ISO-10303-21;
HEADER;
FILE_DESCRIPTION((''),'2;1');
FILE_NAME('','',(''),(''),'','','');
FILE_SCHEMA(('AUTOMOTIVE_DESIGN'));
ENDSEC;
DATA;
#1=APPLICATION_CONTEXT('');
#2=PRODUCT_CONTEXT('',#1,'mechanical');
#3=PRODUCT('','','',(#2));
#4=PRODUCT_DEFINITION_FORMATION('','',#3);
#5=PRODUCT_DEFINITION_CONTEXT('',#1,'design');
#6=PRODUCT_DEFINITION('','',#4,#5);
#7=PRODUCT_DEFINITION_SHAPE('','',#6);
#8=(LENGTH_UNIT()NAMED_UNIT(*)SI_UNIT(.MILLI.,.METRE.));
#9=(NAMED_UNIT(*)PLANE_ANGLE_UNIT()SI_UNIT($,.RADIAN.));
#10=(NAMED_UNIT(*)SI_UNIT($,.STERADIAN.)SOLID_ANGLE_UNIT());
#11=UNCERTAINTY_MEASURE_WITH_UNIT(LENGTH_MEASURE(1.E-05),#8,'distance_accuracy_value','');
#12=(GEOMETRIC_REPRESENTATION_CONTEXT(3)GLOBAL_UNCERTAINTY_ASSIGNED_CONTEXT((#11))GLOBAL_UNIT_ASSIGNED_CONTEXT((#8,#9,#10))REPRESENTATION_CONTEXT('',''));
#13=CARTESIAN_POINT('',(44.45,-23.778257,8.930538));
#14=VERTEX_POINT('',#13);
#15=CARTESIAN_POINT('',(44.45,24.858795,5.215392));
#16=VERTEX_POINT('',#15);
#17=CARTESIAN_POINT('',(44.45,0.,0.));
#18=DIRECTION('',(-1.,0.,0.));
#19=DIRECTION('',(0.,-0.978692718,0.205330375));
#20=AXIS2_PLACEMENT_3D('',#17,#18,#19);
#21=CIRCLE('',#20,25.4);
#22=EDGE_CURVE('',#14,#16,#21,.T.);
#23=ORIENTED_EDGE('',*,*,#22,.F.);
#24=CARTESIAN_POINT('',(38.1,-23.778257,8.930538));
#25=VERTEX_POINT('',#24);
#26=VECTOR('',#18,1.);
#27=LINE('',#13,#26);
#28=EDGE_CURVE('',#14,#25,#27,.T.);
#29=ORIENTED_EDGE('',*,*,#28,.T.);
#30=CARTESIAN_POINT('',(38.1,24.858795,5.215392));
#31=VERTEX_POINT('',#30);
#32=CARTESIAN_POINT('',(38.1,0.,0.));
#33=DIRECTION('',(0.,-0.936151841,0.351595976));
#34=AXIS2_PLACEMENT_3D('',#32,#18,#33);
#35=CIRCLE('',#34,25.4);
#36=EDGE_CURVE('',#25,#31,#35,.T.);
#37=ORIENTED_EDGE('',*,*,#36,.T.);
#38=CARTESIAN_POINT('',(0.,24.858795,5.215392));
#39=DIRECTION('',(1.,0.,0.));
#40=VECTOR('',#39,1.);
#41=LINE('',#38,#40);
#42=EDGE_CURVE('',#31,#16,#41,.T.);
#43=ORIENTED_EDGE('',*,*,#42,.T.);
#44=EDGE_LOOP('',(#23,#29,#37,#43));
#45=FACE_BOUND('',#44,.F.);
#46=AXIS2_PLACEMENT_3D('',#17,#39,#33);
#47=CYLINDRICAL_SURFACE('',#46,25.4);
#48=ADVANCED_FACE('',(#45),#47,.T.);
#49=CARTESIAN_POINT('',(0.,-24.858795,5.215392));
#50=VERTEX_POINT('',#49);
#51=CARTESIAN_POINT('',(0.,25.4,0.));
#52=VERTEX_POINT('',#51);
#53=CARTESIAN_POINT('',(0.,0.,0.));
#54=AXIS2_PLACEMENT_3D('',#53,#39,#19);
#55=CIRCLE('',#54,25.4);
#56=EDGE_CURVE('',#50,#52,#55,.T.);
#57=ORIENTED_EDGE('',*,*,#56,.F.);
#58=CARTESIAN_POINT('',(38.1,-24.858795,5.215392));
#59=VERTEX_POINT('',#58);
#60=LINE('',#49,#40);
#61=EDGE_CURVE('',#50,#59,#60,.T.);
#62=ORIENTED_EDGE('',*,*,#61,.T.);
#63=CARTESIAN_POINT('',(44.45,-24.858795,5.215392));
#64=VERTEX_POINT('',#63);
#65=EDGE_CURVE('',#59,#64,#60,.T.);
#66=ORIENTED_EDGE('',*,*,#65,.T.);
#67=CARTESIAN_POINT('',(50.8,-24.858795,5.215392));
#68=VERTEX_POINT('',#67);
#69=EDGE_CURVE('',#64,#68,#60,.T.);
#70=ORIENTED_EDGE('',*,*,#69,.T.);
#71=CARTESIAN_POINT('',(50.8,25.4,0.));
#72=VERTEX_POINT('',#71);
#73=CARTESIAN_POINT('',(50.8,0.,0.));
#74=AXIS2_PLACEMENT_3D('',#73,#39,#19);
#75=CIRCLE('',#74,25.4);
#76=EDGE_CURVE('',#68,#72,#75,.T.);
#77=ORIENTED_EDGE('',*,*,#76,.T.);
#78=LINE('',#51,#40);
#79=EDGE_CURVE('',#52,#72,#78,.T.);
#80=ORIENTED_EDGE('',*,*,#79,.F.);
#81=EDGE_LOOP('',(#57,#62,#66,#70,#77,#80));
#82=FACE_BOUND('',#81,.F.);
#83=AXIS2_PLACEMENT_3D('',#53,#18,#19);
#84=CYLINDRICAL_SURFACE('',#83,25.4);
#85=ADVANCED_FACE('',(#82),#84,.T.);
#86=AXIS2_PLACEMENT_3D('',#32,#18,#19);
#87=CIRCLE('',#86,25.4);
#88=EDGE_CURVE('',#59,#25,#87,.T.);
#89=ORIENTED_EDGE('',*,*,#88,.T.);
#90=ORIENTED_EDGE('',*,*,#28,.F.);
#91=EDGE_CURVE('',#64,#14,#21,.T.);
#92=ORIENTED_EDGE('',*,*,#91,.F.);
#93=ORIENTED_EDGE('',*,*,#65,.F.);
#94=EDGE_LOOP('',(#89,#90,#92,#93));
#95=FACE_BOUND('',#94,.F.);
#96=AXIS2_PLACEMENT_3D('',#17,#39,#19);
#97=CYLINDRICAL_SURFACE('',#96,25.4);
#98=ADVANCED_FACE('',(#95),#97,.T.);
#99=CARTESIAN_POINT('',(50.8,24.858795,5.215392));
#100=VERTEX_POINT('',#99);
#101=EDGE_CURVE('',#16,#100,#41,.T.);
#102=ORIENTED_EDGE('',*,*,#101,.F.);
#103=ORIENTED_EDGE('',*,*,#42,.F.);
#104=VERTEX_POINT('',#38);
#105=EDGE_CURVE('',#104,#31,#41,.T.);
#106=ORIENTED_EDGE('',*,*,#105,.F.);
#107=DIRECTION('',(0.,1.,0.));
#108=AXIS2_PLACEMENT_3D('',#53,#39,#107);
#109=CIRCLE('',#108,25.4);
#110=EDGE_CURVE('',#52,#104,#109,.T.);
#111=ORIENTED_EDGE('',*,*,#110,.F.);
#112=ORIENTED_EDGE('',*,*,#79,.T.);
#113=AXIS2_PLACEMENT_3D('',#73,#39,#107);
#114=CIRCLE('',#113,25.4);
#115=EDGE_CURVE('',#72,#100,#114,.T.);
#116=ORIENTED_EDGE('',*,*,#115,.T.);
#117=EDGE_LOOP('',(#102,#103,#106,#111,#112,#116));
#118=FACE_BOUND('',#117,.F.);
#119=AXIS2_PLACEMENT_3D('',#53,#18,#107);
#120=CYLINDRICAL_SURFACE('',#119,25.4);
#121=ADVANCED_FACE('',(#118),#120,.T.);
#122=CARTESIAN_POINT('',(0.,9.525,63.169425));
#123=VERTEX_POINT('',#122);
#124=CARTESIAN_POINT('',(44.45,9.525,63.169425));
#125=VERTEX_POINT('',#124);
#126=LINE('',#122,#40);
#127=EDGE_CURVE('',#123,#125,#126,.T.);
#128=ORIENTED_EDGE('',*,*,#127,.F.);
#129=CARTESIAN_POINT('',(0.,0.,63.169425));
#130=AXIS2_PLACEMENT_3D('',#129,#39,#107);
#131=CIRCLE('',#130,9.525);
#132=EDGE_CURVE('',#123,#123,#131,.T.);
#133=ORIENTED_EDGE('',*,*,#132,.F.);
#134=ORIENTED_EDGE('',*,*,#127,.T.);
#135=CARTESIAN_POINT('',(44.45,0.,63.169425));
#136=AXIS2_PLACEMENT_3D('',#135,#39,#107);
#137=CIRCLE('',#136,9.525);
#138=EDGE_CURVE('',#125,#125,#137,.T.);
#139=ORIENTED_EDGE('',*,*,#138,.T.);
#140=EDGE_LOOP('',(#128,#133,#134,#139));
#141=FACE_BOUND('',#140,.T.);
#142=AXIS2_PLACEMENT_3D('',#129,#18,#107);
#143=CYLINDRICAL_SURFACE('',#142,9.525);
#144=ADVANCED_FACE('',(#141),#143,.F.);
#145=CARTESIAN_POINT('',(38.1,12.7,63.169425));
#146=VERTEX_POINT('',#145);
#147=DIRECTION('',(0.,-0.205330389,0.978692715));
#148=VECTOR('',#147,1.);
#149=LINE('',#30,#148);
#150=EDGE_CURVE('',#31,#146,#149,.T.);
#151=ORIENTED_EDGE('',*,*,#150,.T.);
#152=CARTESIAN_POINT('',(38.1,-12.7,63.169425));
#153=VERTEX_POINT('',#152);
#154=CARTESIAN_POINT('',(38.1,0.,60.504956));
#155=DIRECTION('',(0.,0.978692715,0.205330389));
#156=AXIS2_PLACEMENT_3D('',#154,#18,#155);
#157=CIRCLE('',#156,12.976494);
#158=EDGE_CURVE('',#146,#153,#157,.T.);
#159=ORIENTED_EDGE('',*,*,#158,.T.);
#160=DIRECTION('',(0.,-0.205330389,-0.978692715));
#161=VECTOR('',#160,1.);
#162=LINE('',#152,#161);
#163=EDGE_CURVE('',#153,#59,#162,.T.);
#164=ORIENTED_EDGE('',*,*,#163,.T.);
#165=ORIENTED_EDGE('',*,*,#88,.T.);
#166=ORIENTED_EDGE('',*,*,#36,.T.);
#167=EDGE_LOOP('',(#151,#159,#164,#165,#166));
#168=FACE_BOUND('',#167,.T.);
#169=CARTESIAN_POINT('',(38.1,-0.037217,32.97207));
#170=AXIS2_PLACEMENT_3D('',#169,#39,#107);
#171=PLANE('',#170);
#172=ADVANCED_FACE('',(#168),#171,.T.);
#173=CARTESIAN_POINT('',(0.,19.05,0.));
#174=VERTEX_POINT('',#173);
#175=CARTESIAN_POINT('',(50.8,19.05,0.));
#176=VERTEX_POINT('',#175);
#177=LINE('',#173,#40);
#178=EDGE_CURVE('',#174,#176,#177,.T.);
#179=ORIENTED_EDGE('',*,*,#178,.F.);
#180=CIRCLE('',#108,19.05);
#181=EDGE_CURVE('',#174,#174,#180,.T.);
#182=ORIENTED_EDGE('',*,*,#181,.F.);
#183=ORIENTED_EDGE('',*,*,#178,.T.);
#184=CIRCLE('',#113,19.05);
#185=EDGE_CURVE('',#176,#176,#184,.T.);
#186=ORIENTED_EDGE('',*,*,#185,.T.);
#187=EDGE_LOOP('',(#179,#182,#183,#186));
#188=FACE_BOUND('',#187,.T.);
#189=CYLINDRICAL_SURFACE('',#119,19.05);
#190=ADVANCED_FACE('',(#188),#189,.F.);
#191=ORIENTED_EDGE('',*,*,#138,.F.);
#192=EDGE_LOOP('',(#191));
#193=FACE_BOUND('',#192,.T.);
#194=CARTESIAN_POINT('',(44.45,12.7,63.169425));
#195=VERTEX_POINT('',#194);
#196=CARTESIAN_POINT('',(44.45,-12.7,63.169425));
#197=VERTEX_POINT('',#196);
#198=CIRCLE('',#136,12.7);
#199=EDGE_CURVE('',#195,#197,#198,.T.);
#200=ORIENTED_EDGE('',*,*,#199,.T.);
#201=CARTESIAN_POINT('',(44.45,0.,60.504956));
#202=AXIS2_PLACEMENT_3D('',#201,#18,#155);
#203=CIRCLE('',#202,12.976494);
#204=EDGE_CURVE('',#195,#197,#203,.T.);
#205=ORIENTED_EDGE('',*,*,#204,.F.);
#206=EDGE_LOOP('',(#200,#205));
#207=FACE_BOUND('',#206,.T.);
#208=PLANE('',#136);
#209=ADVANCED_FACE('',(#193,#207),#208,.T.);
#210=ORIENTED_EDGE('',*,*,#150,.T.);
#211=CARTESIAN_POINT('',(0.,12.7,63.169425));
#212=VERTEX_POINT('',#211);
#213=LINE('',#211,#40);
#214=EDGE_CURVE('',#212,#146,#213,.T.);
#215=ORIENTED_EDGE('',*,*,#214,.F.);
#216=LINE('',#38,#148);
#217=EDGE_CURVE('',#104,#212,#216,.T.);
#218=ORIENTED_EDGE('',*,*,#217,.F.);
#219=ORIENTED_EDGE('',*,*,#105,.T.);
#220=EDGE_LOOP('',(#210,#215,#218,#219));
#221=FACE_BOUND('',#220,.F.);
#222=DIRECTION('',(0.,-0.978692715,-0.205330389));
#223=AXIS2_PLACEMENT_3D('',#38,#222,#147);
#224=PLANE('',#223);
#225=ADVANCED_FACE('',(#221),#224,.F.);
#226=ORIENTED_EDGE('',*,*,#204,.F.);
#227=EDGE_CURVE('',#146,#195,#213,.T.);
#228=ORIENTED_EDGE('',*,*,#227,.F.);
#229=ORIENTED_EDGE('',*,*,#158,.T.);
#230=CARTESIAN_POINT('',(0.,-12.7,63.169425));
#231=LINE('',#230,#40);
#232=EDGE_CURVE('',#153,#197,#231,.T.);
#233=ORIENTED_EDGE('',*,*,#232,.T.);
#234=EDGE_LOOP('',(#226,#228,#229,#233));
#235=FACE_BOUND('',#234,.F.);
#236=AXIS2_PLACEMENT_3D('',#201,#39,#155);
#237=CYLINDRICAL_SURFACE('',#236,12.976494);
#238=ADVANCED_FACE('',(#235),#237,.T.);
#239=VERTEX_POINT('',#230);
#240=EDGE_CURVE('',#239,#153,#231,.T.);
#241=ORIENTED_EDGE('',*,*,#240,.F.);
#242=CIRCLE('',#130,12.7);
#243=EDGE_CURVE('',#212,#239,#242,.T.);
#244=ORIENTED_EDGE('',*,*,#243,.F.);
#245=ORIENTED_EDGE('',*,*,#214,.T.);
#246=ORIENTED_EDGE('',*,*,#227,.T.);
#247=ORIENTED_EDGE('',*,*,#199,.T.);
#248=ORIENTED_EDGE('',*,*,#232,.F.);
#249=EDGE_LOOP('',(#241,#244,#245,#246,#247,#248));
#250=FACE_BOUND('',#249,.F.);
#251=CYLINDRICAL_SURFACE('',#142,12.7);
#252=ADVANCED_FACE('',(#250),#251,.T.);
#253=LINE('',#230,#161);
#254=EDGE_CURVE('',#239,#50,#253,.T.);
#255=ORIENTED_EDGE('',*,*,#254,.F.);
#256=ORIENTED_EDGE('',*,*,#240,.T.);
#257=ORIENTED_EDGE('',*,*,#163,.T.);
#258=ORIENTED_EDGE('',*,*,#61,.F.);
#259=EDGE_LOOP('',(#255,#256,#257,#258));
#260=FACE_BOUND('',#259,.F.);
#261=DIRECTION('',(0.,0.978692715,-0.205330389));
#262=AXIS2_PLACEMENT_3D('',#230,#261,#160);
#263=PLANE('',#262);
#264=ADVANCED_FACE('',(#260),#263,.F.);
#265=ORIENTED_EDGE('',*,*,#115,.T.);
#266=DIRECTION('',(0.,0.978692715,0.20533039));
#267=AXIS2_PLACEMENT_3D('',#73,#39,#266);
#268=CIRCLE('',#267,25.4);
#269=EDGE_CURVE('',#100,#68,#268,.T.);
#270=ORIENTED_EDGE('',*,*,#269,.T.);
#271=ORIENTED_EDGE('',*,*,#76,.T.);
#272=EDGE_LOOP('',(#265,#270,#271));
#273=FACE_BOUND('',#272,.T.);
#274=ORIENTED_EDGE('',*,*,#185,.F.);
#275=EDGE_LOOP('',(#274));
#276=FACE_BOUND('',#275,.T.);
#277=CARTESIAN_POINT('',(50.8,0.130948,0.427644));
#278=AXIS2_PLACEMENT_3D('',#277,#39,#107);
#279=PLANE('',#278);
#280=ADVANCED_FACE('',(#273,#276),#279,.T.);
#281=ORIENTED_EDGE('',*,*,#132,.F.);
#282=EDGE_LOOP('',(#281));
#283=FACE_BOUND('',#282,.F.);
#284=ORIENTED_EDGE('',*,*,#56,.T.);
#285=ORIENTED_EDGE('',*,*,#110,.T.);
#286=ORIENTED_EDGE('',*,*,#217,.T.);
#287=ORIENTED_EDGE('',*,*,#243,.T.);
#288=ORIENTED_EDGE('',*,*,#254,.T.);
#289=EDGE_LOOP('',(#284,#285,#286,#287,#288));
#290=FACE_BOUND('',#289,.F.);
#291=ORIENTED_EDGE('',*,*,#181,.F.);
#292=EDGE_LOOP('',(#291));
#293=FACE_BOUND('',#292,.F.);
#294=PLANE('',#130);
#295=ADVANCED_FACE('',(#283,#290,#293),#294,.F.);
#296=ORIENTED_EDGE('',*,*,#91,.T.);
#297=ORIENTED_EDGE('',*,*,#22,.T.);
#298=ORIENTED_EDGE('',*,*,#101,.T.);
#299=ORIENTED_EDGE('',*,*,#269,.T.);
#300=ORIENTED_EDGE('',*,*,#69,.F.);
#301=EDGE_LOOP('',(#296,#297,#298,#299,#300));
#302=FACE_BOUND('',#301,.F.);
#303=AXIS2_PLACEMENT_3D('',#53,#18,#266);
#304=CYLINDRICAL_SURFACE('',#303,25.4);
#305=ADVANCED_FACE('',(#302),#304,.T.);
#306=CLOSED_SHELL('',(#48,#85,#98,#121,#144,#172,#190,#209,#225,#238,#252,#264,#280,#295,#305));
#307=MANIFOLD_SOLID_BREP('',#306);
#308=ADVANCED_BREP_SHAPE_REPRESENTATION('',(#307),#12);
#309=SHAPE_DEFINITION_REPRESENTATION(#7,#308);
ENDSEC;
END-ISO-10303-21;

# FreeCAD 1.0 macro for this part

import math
import FreeCAD as App
import Part
import Sketcher
Q = App.Units.Quantity

doc = App.newDocument("Part")
body = doc.addObject("PartDesign::Body", "Body")

sketch1 = body.newObject("Sketcher::SketchObject", "Sketch")
sketch1.AttachmentSupport = (doc.getObject("YZ_Plane"), [""])
sketch1.MapMode = "FlatFace"
sketch1.addGeometry([
    Part.ArcOfCircle(Part.Circle(App.Vector(0, 0, 0), App.Vector(0, 0, 1), 25), math.radians(168), math.radians(360)),
    Part.ArcOfCircle(Part.Circle(App.Vector(0, 0, 0), App.Vector(0, 0, 1), 25), math.radians(0), math.radians(11.85)),
    Part.ArcOfCircle(Part.Circle(App.Vector(0, 0, 0), App.Vector(0, 0, 1), 25), math.radians(12), math.radians(168)),
    Part.Circle(App.Vector(0, 0, 0), App.Vector(0, 0, 1), 19),
], False)
sketch1.addConstraint([
    Sketcher.Constraint("Tangent", 0, 2, 1, 1),
    Sketcher.Constraint("Tangent", 1, 2, 2, 1),
    Sketcher.Constraint("Tangent", 2, 2, 0, 1),
    Sketcher.Constraint("Coincident", 0, 3, -1, 1),
    Sketcher.Constraint("Coincident", 3, 3, -1, 1),
    Sketcher.Constraint("PointOnObject", 0, 2, -1),
    Sketcher.Constraint("Horizontal", 1, 2, 2, 2),
    Sketcher.Constraint("Radius", 0, Q("1 in")),
    Sketcher.Constraint("Diameter", 3, Q("1.5 in")),
    Sketcher.Constraint("DistanceY", -1, 1, 1, 2, Q("5.215392 mm")),
])
pad1 = body.newObject("PartDesign::Pad", "Pad")
pad1.Profile = sketch1
pad1.Length = Q("2 in")

sketch2 = body.newObject("Sketcher::SketchObject", "Sketch001")
sketch2.AttachmentSupport = (doc.getObject("YZ_Plane"), [""])
sketch2.MapMode = "FlatFace"
sketch2.addGeometry([
    Part.ArcOfCircle(Part.Circle(App.Vector(0, 0, 0), App.Vector(0, 0, 1), 25), math.radians(12), math.radians(168)),
    Part.LineSegment(App.Vector(25, 5, 0), App.Vector(13, 63, 0)),
    Part.ArcOfCircle(Part.Circle(App.Vector(0, 63, 0), App.Vector(0, 0, 1), 13), math.radians(180), math.radians(360)),
    Part.LineSegment(App.Vector(-13, 63, 0), App.Vector(-25, 5, 0)),
], False)
sketch2.addConstraint([
    Sketcher.Constraint("Tangent", 0, 1, 1, 1),
    Sketcher.Constraint("Coincident", 1, 2, 2, 2),
    Sketcher.Constraint("Coincident", 2, 1, 3, 1),
    Sketcher.Constraint("Tangent", 3, 2, 0, 2),
    Sketcher.Constraint("Coincident", 0, 3, -1, 1),
    Sketcher.Constraint("Symmetric", 1, 2, 2, 1, -2),
    Sketcher.Constraint("Horizontal", 2, 3, 1, 2),
    Sketcher.Constraint("Radius", 0, Q("1 in")),
    Sketcher.Constraint("Radius", 2, Q("0.5 in")),
    Sketcher.Constraint("Distance", 1, Q("59.21576 mm")),
])
pad2 = body.newObject("PartDesign::Pad", "Pad001")
pad2.Profile = sketch2
pad2.Length = Q("1.75 in")

sketch3 = body.newObject("Sketcher::SketchObject", "Sketch002")
sketch3.AttachmentSupport = (doc.getObject("YZ_Plane"), [""])
sketch3.MapMode = "FlatFace"
sketch3.addGeometry([
    Part.Circle(App.Vector(0, 63, 0), App.Vector(0, 0, 1), 13),
    Part.Circle(App.Vector(0, 63, 0), App.Vector(0, 0, 1), 10),
], False)
sketch3.addConstraint([
    Sketcher.Constraint("Coincident", 1, 3, 0, 3),
    Sketcher.Constraint("PointOnObject", 0, 3, -2),
    Sketcher.Constraint("Diameter", 0, Q("1 in")),
    Sketcher.Constraint("Diameter", 1, Q("0.75 in")),
    Sketcher.Constraint("DistanceY", -1, 1, 0, 3, Q("63.169425 mm")),
])
pad3 = body.newObject("PartDesign::Pad", "Pad002")
pad3.Profile = sketch3
pad3.Length = Q("1.75 in")

sketch4 = body.newObject("Sketcher::SketchObject", "Sketch003")
sketch4.AttachmentSupport = (doc.getObject("YZ_Plane"), [""])
sketch4.MapMode = "FlatFace"
sketch4.AttachmentOffset = App.Placement(App.Vector(0, 0, 1.75 * 25.4), App.Rotation())
sketch4.addGeometry([
    Part.ArcOfCircle(Part.Circle(App.Vector(0, 0, 0), App.Vector(0, 0, 1), 25.4), math.radians(12), math.radians(159)),
    Part.LineSegment(App.Vector(24.9, 5.2, 0), App.Vector(12.7, 63.2, 0)),
    Part.ArcOfCircle(Part.Circle(App.Vector(0, 60.5, 0), App.Vector(0, 0, 1), 13), math.radians(168), math.radians(372)),
    Part.LineSegment(App.Vector(-12.7, 63.2, 0), App.Vector(-24.9, 5.2, 0)),
    Part.ArcOfCircle(Part.Circle(App.Vector(0, 0, 0), App.Vector(0, 0, 1), 25.4), math.radians(159.42), math.radians(168.15)),
], False)
sketch4.addConstraint([
    Sketcher.Constraint("Tangent", 0, 1, 1, 1),
    Sketcher.Constraint("Tangent", 1, 2, 2, 2),
    Sketcher.Constraint("Tangent", 2, 1, 3, 1),
    Sketcher.Constraint("Tangent", 3, 2, 4, 2),
    Sketcher.Constraint("Tangent", 4, 1, 0, 2),
    Sketcher.Constraint("Coincident", 0, 3, -1, 1),
    Sketcher.Constraint("Equal", 0, 4),
    Sketcher.Constraint("PointOnObject", 2, 3, -2),
    Sketcher.Constraint("Radius", 0, Q("1 in")),
    Sketcher.Constraint("DistanceX", 2, 1, 1, 2, Q("1 in")),
    Sketcher.Constraint("Radius", 2, Q("12.976494 mm")),
    Sketcher.Constraint("DistanceX", 3, 2, 4, 1, Q("1.080538 mm")),
])
pocket1 = body.newObject("PartDesign::Pocket", "Pocket")
pocket1.Profile = sketch4
pocket1.Length = Q("0.25 in")

doc.recompute()
